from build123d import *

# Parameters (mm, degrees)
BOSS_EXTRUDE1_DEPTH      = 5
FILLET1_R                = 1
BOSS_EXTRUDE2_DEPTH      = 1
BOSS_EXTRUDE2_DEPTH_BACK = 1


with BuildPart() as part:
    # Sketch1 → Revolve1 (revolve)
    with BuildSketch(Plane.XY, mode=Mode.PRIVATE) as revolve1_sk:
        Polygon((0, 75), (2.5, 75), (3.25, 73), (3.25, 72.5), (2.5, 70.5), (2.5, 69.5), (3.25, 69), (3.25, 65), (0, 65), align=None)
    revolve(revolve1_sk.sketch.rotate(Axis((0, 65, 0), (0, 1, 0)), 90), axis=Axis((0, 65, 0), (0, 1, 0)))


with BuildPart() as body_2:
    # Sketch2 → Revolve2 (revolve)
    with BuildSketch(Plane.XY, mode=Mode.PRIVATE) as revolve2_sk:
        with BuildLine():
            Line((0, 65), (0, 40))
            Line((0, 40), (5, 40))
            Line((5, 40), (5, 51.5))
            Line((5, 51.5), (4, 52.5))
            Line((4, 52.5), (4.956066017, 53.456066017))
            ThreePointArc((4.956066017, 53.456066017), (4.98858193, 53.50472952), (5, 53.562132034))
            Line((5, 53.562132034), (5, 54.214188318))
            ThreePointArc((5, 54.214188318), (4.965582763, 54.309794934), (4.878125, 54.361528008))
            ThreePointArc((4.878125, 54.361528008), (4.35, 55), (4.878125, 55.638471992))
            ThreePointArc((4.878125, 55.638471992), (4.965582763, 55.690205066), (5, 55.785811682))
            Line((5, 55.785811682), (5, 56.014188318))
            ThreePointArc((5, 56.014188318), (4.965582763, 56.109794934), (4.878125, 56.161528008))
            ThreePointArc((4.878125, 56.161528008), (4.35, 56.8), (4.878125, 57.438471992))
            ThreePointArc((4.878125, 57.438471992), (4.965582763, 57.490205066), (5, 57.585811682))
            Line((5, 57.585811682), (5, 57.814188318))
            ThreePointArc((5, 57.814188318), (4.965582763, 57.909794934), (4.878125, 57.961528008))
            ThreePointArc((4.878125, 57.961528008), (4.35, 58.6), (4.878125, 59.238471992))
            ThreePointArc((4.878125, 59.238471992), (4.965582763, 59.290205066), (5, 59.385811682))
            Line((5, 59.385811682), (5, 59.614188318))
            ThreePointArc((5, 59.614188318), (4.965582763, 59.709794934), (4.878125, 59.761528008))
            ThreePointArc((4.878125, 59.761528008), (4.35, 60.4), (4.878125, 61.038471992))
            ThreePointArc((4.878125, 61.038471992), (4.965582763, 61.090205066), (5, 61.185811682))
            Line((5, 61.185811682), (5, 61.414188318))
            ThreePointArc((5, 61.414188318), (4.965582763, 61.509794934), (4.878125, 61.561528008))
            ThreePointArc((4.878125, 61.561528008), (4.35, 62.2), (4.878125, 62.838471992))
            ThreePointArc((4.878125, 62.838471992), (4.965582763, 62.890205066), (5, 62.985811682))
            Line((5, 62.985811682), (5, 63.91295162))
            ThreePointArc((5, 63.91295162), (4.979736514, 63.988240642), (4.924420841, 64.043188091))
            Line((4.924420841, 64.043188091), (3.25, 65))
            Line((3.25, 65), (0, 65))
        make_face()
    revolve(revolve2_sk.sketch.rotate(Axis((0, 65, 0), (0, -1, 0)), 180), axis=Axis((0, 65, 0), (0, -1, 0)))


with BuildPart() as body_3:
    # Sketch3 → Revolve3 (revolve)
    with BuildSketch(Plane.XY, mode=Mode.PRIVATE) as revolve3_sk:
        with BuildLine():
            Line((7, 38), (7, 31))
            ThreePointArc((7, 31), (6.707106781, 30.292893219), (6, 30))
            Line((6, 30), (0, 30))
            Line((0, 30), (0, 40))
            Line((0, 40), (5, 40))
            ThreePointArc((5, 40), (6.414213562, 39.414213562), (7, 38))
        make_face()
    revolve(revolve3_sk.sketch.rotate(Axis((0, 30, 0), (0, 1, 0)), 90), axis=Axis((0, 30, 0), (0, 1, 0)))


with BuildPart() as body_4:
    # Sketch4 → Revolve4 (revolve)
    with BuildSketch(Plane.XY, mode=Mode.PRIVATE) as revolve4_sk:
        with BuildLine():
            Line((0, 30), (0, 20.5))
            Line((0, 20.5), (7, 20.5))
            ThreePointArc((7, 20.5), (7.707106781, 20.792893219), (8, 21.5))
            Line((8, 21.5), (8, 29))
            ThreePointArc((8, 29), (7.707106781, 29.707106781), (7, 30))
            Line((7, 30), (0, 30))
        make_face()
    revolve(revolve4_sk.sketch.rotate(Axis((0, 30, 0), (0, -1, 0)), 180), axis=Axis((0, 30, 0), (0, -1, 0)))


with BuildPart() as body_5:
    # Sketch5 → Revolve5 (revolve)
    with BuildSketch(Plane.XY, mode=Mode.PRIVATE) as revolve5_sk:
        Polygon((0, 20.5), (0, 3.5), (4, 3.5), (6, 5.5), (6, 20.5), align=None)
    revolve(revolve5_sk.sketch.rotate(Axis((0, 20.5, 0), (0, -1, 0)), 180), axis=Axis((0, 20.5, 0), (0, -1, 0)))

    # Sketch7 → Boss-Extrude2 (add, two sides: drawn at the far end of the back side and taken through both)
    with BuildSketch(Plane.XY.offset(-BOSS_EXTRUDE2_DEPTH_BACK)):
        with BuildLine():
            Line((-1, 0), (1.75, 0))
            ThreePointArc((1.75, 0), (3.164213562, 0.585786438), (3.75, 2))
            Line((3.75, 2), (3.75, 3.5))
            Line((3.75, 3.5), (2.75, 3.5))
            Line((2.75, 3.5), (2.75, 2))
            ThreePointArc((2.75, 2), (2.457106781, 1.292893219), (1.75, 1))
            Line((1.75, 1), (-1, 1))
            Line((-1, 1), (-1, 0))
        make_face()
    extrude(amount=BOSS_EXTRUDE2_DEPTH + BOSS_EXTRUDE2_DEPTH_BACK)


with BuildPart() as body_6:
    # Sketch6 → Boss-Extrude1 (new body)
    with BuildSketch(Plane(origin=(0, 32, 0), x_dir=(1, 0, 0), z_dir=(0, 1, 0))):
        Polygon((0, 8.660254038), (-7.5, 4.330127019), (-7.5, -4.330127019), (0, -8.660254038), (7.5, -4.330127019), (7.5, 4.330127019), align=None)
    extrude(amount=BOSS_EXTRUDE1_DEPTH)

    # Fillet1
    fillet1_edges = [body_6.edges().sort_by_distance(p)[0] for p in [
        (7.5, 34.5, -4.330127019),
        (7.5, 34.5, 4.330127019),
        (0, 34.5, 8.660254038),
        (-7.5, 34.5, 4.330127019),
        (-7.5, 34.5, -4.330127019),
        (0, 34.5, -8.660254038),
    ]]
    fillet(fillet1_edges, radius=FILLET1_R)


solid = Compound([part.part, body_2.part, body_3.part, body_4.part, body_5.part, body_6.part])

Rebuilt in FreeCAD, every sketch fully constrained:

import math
import FreeCAD as App
import Part
import Sketcher
Q = App.Units.Quantity


def edges_at(feature, points):
    """Names of the edges that pass closest to the given points."""
    edges = feature.Shape.Edges
    near = lambda p: min(range(len(edges)), key=lambda i: edges[i].distToShape(Part.Vertex(*p))[0])
    return sorted({f"Edge{near(p) + 1}" for p in points})

doc = App.newDocument("Part")
body = doc.addObject("PartDesign::Body", "Body")

# Sketch on XY plane
sketch1 = body.newObject("Sketcher::SketchObject", "Sketch")
sketch1.AttachmentSupport = (doc.getObject("XY_Plane"), [""])
sketch1.MapMode = "FlatFace"
sketch1.addGeometry([
    Part.LineSegment(App.Vector(2.5, 75, 0), App.Vector(0, 75, 0)),  # 0
    Part.LineSegment(App.Vector(0, 75, 0), App.Vector(0, 65, 0)),  # 1
    Part.LineSegment(App.Vector(0, 65, 0), App.Vector(3.2, 65, 0)),  # 2
    Part.LineSegment(App.Vector(3.2, 65, 0), App.Vector(3.2, 69, 0)),  # 3
    Part.LineSegment(App.Vector(3.2, 69, 0), App.Vector(2.5, 69.5, 0)),  # 4
    Part.LineSegment(App.Vector(2.5, 69.5, 0), App.Vector(2.5, 70.5, 0)),  # 5
    Part.LineSegment(App.Vector(2.5, 70.5, 0), App.Vector(3.2, 72.5, 0)),  # 6
    Part.LineSegment(App.Vector(3.2, 72.5, 0), App.Vector(3.2, 73, 0)),  # 7
    Part.LineSegment(App.Vector(3.2, 73, 0), App.Vector(2.5, 75, 0)),  # 8
], False)
sketch1.addConstraint([
    Sketcher.Constraint("Coincident", 0, 2, 1, 1),
    Sketcher.Constraint("Coincident", 1, 2, 2, 1),
    Sketcher.Constraint("Coincident", 2, 2, 3, 1),
    Sketcher.Constraint("Coincident", 3, 2, 4, 1),
    Sketcher.Constraint("Coincident", 4, 2, 5, 1),
    Sketcher.Constraint("Coincident", 5, 2, 6, 1),
    Sketcher.Constraint("Coincident", 6, 2, 7, 1),
    Sketcher.Constraint("Coincident", 7, 2, 8, 1),
    Sketcher.Constraint("Coincident", 8, 2, 0, 1),
    Sketcher.Constraint("Horizontal", 0),
    Sketcher.Constraint("Vertical", 1),
    Sketcher.Constraint("Horizontal", 2),
    Sketcher.Constraint("Vertical", 3),
    Sketcher.Constraint("Vertical", 5),
    Sketcher.Constraint("Vertical", 7),
    Sketcher.Constraint("PointOnObject", 0, 2, -2),
    Sketcher.Constraint("Vertical", 3, 2, 6, 2),
    Sketcher.Constraint("Vertical", 5, 2, 8, 2),
    Sketcher.Constraint("Equal", 6, 8),
    Sketcher.Constraint("DistanceY", 1, 2, 1, 1, 10.0),
    Sketcher.Constraint("DistanceY", 3, 1, 3, 2, 4.0),
    Sketcher.Constraint("DistanceY", 5, 1, 5, 2, 1.0),
    Sketcher.Constraint("DistanceX", 0, 2, 0, 1, 2.5),
    Sketcher.Constraint("DistanceY", 7, 1, 7, 2, 0.5),
    Sketcher.Constraint("DistanceY", -1, 1, 0, 2, 75.0),
    Sketcher.Constraint("DistanceY", -1, 1, 7, 2, 73.0),
    Sketcher.Constraint("DistanceX", 2, 1, 2, 2, 3.25),
])
revolution = body.newObject("PartDesign::Revolution", "Revolution")
revolution.Profile = sketch1
revolution.ReferenceAxis = (sketch1, ["V_Axis"])
revolution.Angle = 360
body2 = doc.addObject("PartDesign::Body", "Body001")

# Sketch on XY plane
sketch2 = body2.newObject("Sketcher::SketchObject", "Sketch001")
sketch2.AttachmentSupport = (doc.getObject("XY_Plane001"), [""])
sketch2.MapMode = "FlatFace"
sketch2.addGeometry([
    Part.LineSegment(App.Vector(0, 65, 0), App.Vector(0, 40, 0)),  # 0
    Part.LineSegment(App.Vector(0, 40, 0), App.Vector(5, 40, 0)),  # 1
    Part.LineSegment(App.Vector(5, 40, 0), App.Vector(5, 51.5, 0)),  # 2
    Part.LineSegment(App.Vector(5, 51.5, 0), App.Vector(4, 52.5, 0)),  # 3
    Part.LineSegment(App.Vector(4, 52.5, 0), App.Vector(4.96, 53.46, 0)),  # 4
    Part.ArcOfCircle(Part.Circle(App.Vector(4.85, 53.56, 0), App.Vector(0, 0, 1), 0.15), math.radians(-45), math.radians(0)),  # 5
    Part.LineSegment(App.Vector(5, 53.56, 0), App.Vector(5, 54.21, 0)),  # 6
    Part.ArcOfCircle(Part.Circle(App.Vector(4.85, 54.21, 0), App.Vector(0, 0, 1), 0.15), math.radians(0), math.radians(79)),  # 7
    Part.ArcOfCircle(Part.Circle(App.Vector(5, 55, 0), App.Vector(0, 0, 1), 0.65), math.radians(101), math.radians(259)),  # 8
    Part.ArcOfCircle(Part.Circle(App.Vector(4.85, 55.79, 0), App.Vector(0, 0, 1), 0.15), math.radians(-79), math.radians(0)),  # 9
    Part.LineSegment(App.Vector(5, 55.79, 0), App.Vector(5, 56.01, 0)),  # 10
    Part.ArcOfCircle(Part.Circle(App.Vector(4.85, 56.01, 0), App.Vector(0, 0, 1), 0.15), math.radians(0), math.radians(79)),  # 11
    Part.ArcOfCircle(Part.Circle(App.Vector(5, 56.8, 0), App.Vector(0, 0, 1), 0.65), math.radians(101), math.radians(259)),  # 12
    Part.ArcOfCircle(Part.Circle(App.Vector(4.85, 57.59, 0), App.Vector(0, 0, 1), 0.15), math.radians(-79), math.radians(0)),  # 13
    Part.LineSegment(App.Vector(5, 57.59, 0), App.Vector(5, 57.81, 0)),  # 14
    Part.ArcOfCircle(Part.Circle(App.Vector(4.85, 57.81, 0), App.Vector(0, 0, 1), 0.15), math.radians(0), math.radians(79)),  # 15
    Part.ArcOfCircle(Part.Circle(App.Vector(5, 58.6, 0), App.Vector(0, 0, 1), 0.65), math.radians(101), math.radians(259)),  # 16
    Part.ArcOfCircle(Part.Circle(App.Vector(4.85, 59.39, 0), App.Vector(0, 0, 1), 0.15), math.radians(-79), math.radians(0)),  # 17
    Part.LineSegment(App.Vector(5, 59.39, 0), App.Vector(5, 59.61, 0)),  # 18
    Part.ArcOfCircle(Part.Circle(App.Vector(4.85, 59.61, 0), App.Vector(0, 0, 1), 0.15), math.radians(0), math.radians(79)),  # 19
    Part.ArcOfCircle(Part.Circle(App.Vector(5, 60.4, 0), App.Vector(0, 0, 1), 0.65), math.radians(101), math.radians(259)),  # 20
    Part.ArcOfCircle(Part.Circle(App.Vector(4.85, 61.19, 0), App.Vector(0, 0, 1), 0.15), math.radians(-79), math.radians(0)),  # 21
    Part.LineSegment(App.Vector(5, 61.19, 0), App.Vector(5, 61.41, 0)),  # 22
    Part.ArcOfCircle(Part.Circle(App.Vector(4.85, 61.41, 0), App.Vector(0, 0, 1), 0.15), math.radians(0), math.radians(79)),  # 23
    Part.ArcOfCircle(Part.Circle(App.Vector(5, 62.2, 0), App.Vector(0, 0, 1), 0.65), math.radians(101), math.radians(259)),  # 24
    Part.ArcOfCircle(Part.Circle(App.Vector(4.85, 62.99, 0), App.Vector(0, 0, 1), 0.15), math.radians(-79), math.radians(0)),  # 25
    Part.LineSegment(App.Vector(5, 62.99, 0), App.Vector(5, 63.91, 0)),  # 26
    Part.ArcOfCircle(Part.Circle(App.Vector(4.85, 63.91, 0), App.Vector(0, 0, 1), 0.15), math.radians(0), math.radians(60)),  # 27
    Part.LineSegment(App.Vector(4.92, 64.04, 0), App.Vector(3.25, 65, 0)),  # 28
    Part.LineSegment(App.Vector(3.25, 65, 0), App.Vector(0, 65, 0)),  # 29
], False)
sketch2.addConstraint([
    Sketcher.Constraint("Coincident", 0, 2, 1, 1),
    Sketcher.Constraint("Coincident", 1, 2, 2, 1),
    Sketcher.Constraint("Coincident", 2, 2, 3, 1),
    Sketcher.Constraint("Coincident", 3, 2, 4, 1),
    Sketcher.Constraint("Tangent", 4, 2, 5, 1),
    Sketcher.Constraint("Tangent", 5, 2, 6, 1),
    Sketcher.Constraint("Tangent", 6, 2, 7, 1),
    Sketcher.Constraint("Tangent", 7, 2, 8, 2),
    Sketcher.Constraint("Tangent", 8, 1, 9, 1),
    Sketcher.Constraint("Tangent", 9, 2, 10, 1),
    Sketcher.Constraint("Tangent", 10, 2, 11, 1),
    Sketcher.Constraint("Tangent", 11, 2, 12, 2),
    Sketcher.Constraint("Tangent", 12, 1, 13, 1),
    Sketcher.Constraint("Tangent", 13, 2, 14, 1),
    Sketcher.Constraint("Tangent", 14, 2, 15, 1),
    Sketcher.Constraint("Tangent", 15, 2, 16, 2),
    Sketcher.Constraint("Tangent", 16, 1, 17, 1),
    Sketcher.Constraint("Tangent", 17, 2, 18, 1),
    Sketcher.Constraint("Tangent", 18, 2, 19, 1),
    Sketcher.Constraint("Tangent", 19, 2, 20, 2),
    Sketcher.Constraint("Tangent", 20, 1, 21, 1),
    Sketcher.Constraint("Tangent", 21, 2, 22, 1),
    Sketcher.Constraint("Tangent", 22, 2, 23, 1),
    Sketcher.Constraint("Tangent", 23, 2, 24, 2),
    Sketcher.Constraint("Tangent", 24, 1, 25, 1),
    Sketcher.Constraint("Tangent", 25, 2, 26, 1),
    Sketcher.Constraint("Tangent", 26, 2, 27, 1),
    Sketcher.Constraint("Tangent", 27, 2, 28, 1),
    Sketcher.Constraint("Coincident", 28, 2, 29, 1),
    Sketcher.Constraint("Coincident", 29, 2, 0, 1),
    Sketcher.Constraint("Vertical", 0),
    Sketcher.Constraint("Horizontal", 1),
    Sketcher.Constraint("Vertical", 2),
    Sketcher.Constraint("Vertical", 6),
    Sketcher.Constraint("Vertical", 10),
    Sketcher.Constraint("Vertical", 14),
    Sketcher.Constraint("Vertical", 18),
    Sketcher.Constraint("Vertical", 22),
    Sketcher.Constraint("Vertical", 26),
    Sketcher.Constraint("Horizontal", 29),
    Sketcher.Constraint("Equal", 5, 7),
    Sketcher.Constraint("Equal", 7, 9),
    Sketcher.Constraint("Equal", 9, 11),
    Sketcher.Constraint("Equal", 8, 12),
    Sketcher.Constraint("Equal", 11, 13),
    Sketcher.Constraint("Equal", 13, 15),
    Sketcher.Constraint("Equal", 12, 16),
    Sketcher.Constraint("Equal", 15, 17),
    Sketcher.Constraint("Equal", 17, 19),
    Sketcher.Constraint("Equal", 16, 20),
    Sketcher.Constraint("Equal", 19, 21),
    Sketcher.Constraint("Equal", 21, 23),
    Sketcher.Constraint("Equal", 20, 24),
    Sketcher.Constraint("Equal", 23, 25),
    Sketcher.Constraint("Equal", 25, 27),
    Sketcher.Constraint("PointOnObject", 0, 2, -2),
    Sketcher.Constraint("Perpendicular", 3, 4),
    Sketcher.Constraint("Vertical", 7, 3, 9, 3),
    Sketcher.Constraint("Vertical", 8, 3, 12, 3),
    Sketcher.Constraint("Vertical", 11, 3, 13, 3),
    Sketcher.Constraint("Vertical", 12, 3, 16, 3),
    Sketcher.Constraint("Vertical", 15, 3, 17, 3),
    Sketcher.Constraint("Vertical", 16, 3, 20, 3),
    Sketcher.Constraint("Vertical", 19, 3, 21, 3),
    Sketcher.Constraint("Vertical", 20, 3, 24, 3),
    Sketcher.Constraint("Vertical", 23, 3, 25, 3),
    Sketcher.Constraint("Vertical", 24, 3, 1, 2),
    Sketcher.Constraint("Vertical", 2, 2, 5, 2),
    Sketcher.Constraint("Equal", 10, 14),
    Sketcher.Constraint("Equal", 14, 18),
    Sketcher.Constraint("Equal", 18, 22),
    Sketcher.Constraint("DistanceX", 1, 1, 1, 2, 5.0),
    Sketcher.Constraint("DistanceY", 0, 2, 0, 1, 25.0),
    Sketcher.Constraint("Angle", 3, Q("135 deg")),
    Sketcher.Constraint("Radius", 5, 0.15),
    Sketcher.Constraint("Radius", 8, 0.65),
    Sketcher.Constraint("DistanceY", 2, 1, 2, 2, 11.5),
    Sketcher.Constraint("DistanceY", -1, 1, 8, 3, 55.0),
    Sketcher.Constraint("DistanceY", -1, 1, 0, 2, 40.0),
    Sketcher.Constraint("DistanceX", -1, 1, 3, 2, 4.0),
    Sketcher.Constraint("DistanceX", 29, 2, 29, 1, 3.25),
    Sketcher.Constraint("DistanceY", -1, 1, 12, 3, 56.8),
    Sketcher.Constraint("DistanceY", 26, 1, 26, 2, 0.92714),
])
revolution2 = body2.newObject("PartDesign::Revolution", "Revolution001")
revolution2.Profile = sketch2
revolution2.ReferenceAxis = (sketch2, ["V_Axis"])
revolution2.Angle = 360
body3 = doc.addObject("PartDesign::Body", "Body002")

# Sketch on XY plane
sketch3 = body3.newObject("Sketcher::SketchObject", "Sketch002")
sketch3.AttachmentSupport = (doc.getObject("XY_Plane002"), [""])
sketch3.MapMode = "FlatFace"
sketch3.addGeometry([
    Part.LineSegment(App.Vector(7, 31, 0), App.Vector(7, 38, 0)),  # 0
    Part.ArcOfCircle(Part.Circle(App.Vector(5, 38, 0), App.Vector(0, 0, 1), 2), math.radians(0), math.radians(90)),  # 1
    Part.LineSegment(App.Vector(5, 40, 0), App.Vector(0, 40, 0)),  # 2
    Part.LineSegment(App.Vector(0, 40, 0), App.Vector(0, 30, 0)),  # 3
    Part.LineSegment(App.Vector(0, 30, 0), App.Vector(6, 30, 0)),  # 4
    Part.ArcOfCircle(Part.Circle(App.Vector(6, 31, 0), App.Vector(0, 0, 1), 1), math.radians(-90), math.radians(0)),  # 5
], False)
sketch3.addConstraint([
    Sketcher.Constraint("Tangent", 0, 2, 1, 1),
    Sketcher.Constraint("Tangent", 1, 2, 2, 1),
    Sketcher.Constraint("Coincident", 2, 2, 3, 1),
    Sketcher.Constraint("Coincident", 3, 2, 4, 1),
    Sketcher.Constraint("Tangent", 4, 2, 5, 1),
    Sketcher.Constraint("Tangent", 5, 2, 0, 1),
    Sketcher.Constraint("Vertical", 0),
    Sketcher.Constraint("Horizontal", 2),
    Sketcher.Constraint("Vertical", 3),
    Sketcher.Constraint("Horizontal", 4),
    Sketcher.Constraint("PointOnObject", 2, 2, -2),
    Sketcher.Constraint("Radius", 1, 2.0),
    Sketcher.Constraint("Radius", 5, 1.0),
    Sketcher.Constraint("DistanceX", 2, 2, 2, 1, 5.0),
    Sketcher.Constraint("DistanceY", 0, 1, 0, 2, 7.0),
    Sketcher.Constraint("DistanceY", -1, 1, 1, 3, 38.0),
])
revolution3 = body3.newObject("PartDesign::Revolution", "Revolution002")
revolution3.Profile = sketch3
revolution3.ReferenceAxis = (sketch3, ["V_Axis"])
revolution3.Angle = 360
body4 = doc.addObject("PartDesign::Body", "Body003")

# Sketch on XY plane
sketch4 = body4.newObject("Sketcher::SketchObject", "Sketch003")
sketch4.AttachmentSupport = (doc.getObject("XY_Plane003"), [""])
sketch4.MapMode = "FlatFace"
sketch4.addGeometry([
    Part.LineSegment(App.Vector(0, 30, 0), App.Vector(0, 20.5, 0)),  # 0
    Part.LineSegment(App.Vector(0, 20.5, 0), App.Vector(7, 20.5, 0)),  # 1
    Part.ArcOfCircle(Part.Circle(App.Vector(7, 21.5, 0), App.Vector(0, 0, 1), 1), math.radians(-90), math.radians(0)),  # 2
    Part.LineSegment(App.Vector(8, 21.5, 0), App.Vector(8, 29, 0)),  # 3
    Part.ArcOfCircle(Part.Circle(App.Vector(7, 29, 0), App.Vector(0, 0, 1), 1), math.radians(0), math.radians(90)),  # 4
    Part.LineSegment(App.Vector(7, 30, 0), App.Vector(0, 30, 0)),  # 5
], False)
sketch4.addConstraint([
    Sketcher.Constraint("Coincident", 0, 2, 1, 1),
    Sketcher.Constraint("Tangent", 1, 2, 2, 1),
    Sketcher.Constraint("Tangent", 2, 2, 3, 1),
    Sketcher.Constraint("Tangent", 3, 2, 4, 1),
    Sketcher.Constraint("Tangent", 4, 2, 5, 1),
    Sketcher.Constraint("Coincident", 5, 2, 0, 1),
    Sketcher.Constraint("Vertical", 0),
    Sketcher.Constraint("Horizontal", 1),
    Sketcher.Constraint("Vertical", 3),
    Sketcher.Constraint("Horizontal", 5),
    Sketcher.Constraint("Equal", 2, 4),
    Sketcher.Constraint("PointOnObject", 0, 2, -2),
    Sketcher.Constraint("Radius", 2, 1.0),
    Sketcher.Constraint("DistanceX", 1, 1, 1, 2, 7.0),
    Sketcher.Constraint("DistanceY", 0, 2, 0, 1, 9.5),
    Sketcher.Constraint("DistanceY", -1, 1, 4, 3, 29.0),
])
revolution4 = body4.newObject("PartDesign::Revolution", "Revolution003")
revolution4.Profile = sketch4
revolution4.ReferenceAxis = (sketch4, ["V_Axis"])
revolution4.Angle = 360
body5 = doc.addObject("PartDesign::Body", "Body004")

# Sketch on XY plane
sketch5 = body5.newObject("Sketcher::SketchObject", "Sketch004")
sketch5.AttachmentSupport = (doc.getObject("XY_Plane004"), [""])
sketch5.MapMode = "FlatFace"
sketch5.addGeometry([
    Part.LineSegment(App.Vector(0, 20.5, 0), App.Vector(0, 3.5, 0)),  # 0
    Part.LineSegment(App.Vector(0, 3.5, 0), App.Vector(4, 3.5, 0)),  # 1
    Part.LineSegment(App.Vector(4, 3.5, 0), App.Vector(6, 5.5, 0)),  # 2
    Part.LineSegment(App.Vector(6, 5.5, 0), App.Vector(6, 20.5, 0)),  # 3
    Part.LineSegment(App.Vector(6, 20.5, 0), App.Vector(0, 20.5, 0)),  # 4
], False)
sketch5.addConstraint([
    Sketcher.Constraint("Coincident", 0, 2, 1, 1),
    Sketcher.Constraint("Coincident", 1, 2, 2, 1),
    Sketcher.Constraint("Coincident", 2, 2, 3, 1),
    Sketcher.Constraint("Coincident", 3, 2, 4, 1),
    Sketcher.Constraint("Coincident", 4, 2, 0, 1),
    Sketcher.Constraint("Vertical", 0),
    Sketcher.Constraint("Horizontal", 1),
    Sketcher.Constraint("Vertical", 3),
    Sketcher.Constraint("Horizontal", 4),
    Sketcher.Constraint("PointOnObject", 0, 2, -2),
    Sketcher.Constraint("DistanceX", 1, 1, 1, 2, 4.0),
    Sketcher.Constraint("DistanceX", 4, 2, 4, 1, 6.0),
    Sketcher.Constraint("DistanceY", 0, 2, 0, 1, 17.0),
    Sketcher.Constraint("DistanceY", 3, 1, 3, 2, 15.0),
    Sketcher.Constraint("DistanceY", -1, 1, 0, 2, 3.5),
])
revolution5 = body5.newObject("PartDesign::Revolution", "Revolution004")
revolution5.Profile = sketch5
revolution5.ReferenceAxis = (sketch5, ["V_Axis"])
revolution5.Angle = 360

# Sketch on XY plane
sketch6 = body5.newObject("Sketcher::SketchObject", "Sketch005")
sketch6.AttachmentSupport = (doc.getObject("XY_Plane004"), [""])
sketch6.MapMode = "FlatFace"
sketch6.addGeometry([
    Part.LineSegment(App.Vector(-1, 0, 0), App.Vector(1.8, 0, 0)),  # 0
    Part.ArcOfCircle(Part.Circle(App.Vector(1.7, 2, 0), App.Vector(0, 0, 1), 2), math.radians(-90), math.radians(0)),  # 1
    Part.LineSegment(App.Vector(3.8, 2, 0), App.Vector(3.8, 3.5, 0)),  # 2
    Part.LineSegment(App.Vector(3.8, 3.5, 0), App.Vector(2.8, 3.5, 0)),  # 3
    Part.LineSegment(App.Vector(2.8, 3.5, 0), App.Vector(2.8, 2, 0)),  # 4
    Part.ArcOfCircle(Part.Circle(App.Vector(1.7, 2, 0), App.Vector(0, 0, 1), 1), math.radians(-90), math.radians(0)),  # 5
    Part.LineSegment(App.Vector(1.8, 1, 0), App.Vector(-1, 1, 0)),  # 6
    Part.LineSegment(App.Vector(-1, 1, 0), App.Vector(-1, 0, 0)),  # 7
], False)
sketch6.addConstraint([
    Sketcher.Constraint("Tangent", 0, 2, 1, 1),
    Sketcher.Constraint("Tangent", 1, 2, 2, 1),
    Sketcher.Constraint("Coincident", 2, 2, 3, 1),
    Sketcher.Constraint("Coincident", 3, 2, 4, 1),
    Sketcher.Constraint("Tangent", 4, 2, 5, 2),
    Sketcher.Constraint("Tangent", 5, 1, 6, 1),
    Sketcher.Constraint("Coincident", 6, 2, 7, 1),
    Sketcher.Constraint("Coincident", 7, 2, 0, 1),
    Sketcher.Constraint("Horizontal", 0),
    Sketcher.Constraint("Vertical", 2),
    Sketcher.Constraint("Horizontal", 3),
    Sketcher.Constraint("Vertical", 4),
    Sketcher.Constraint("Horizontal", 6),
    Sketcher.Constraint("Vertical", 7),
    Sketcher.Constraint("Coincident", 5, 3, 1, 3),
    Sketcher.Constraint("PointOnObject", 0, 2, -1),
    Sketcher.Constraint("Radius", 1, 2.0),
    Sketcher.Constraint("Radius", 5, 1.0),
    Sketcher.Constraint("DistanceY", 2, 1, 2, 2, 1.5),
    Sketcher.Constraint("DistanceX", 6, 2, -1, 1, 1.0),
    Sketcher.Constraint("DistanceX", 0, 1, 0, 2, 2.75),
])
pad1 = body5.newObject("PartDesign::Pad", "Pad")
pad1.Profile = sketch6
pad1.Type = "TwoLengths"
pad1.Length = 1
pad1.Length2 = 1
body6 = doc.addObject("PartDesign::Body", "Body005")

# Sketch on XZ plane
sketch7 = body6.newObject("Sketcher::SketchObject", "Sketch006")
sketch7.AttachmentSupport = (doc.getObject("XZ_Plane005"), [""])
sketch7.MapMode = "FlatFace"
sketch7.AttachmentOffset = App.Placement(App.Vector(0, 0, -32), App.Rotation())
sketch7.addGeometry([
    Part.LineSegment(App.Vector(0, -9, 0), App.Vector(-8, -4, 0)),  # 0
    Part.LineSegment(App.Vector(-8, -4, 0), App.Vector(-8, 4, 0)),  # 1
    Part.LineSegment(App.Vector(-8, 4, 0), App.Vector(0, 9, 0)),  # 2
    Part.LineSegment(App.Vector(0, 9, 0), App.Vector(8, 4, 0)),  # 3
    Part.LineSegment(App.Vector(8, 4, 0), App.Vector(8, -4, 0)),  # 4
    Part.LineSegment(App.Vector(8, -4, 0), App.Vector(0, -9, 0)),  # 5
], False)
sketch7.addConstraint([
    Sketcher.Constraint("Coincident", 0, 2, 1, 1),
    Sketcher.Constraint("Coincident", 1, 2, 2, 1),
    Sketcher.Constraint("Coincident", 2, 2, 3, 1),
    Sketcher.Constraint("Coincident", 3, 2, 4, 1),
    Sketcher.Constraint("Coincident", 4, 2, 5, 1),
    Sketcher.Constraint("Coincident", 5, 2, 0, 1),
    Sketcher.Constraint("Vertical", 1),
    Sketcher.Constraint("Vertical", 4),
    Sketcher.Constraint("Symmetric", 0, 2, 3, 2, -1, 1),
    Sketcher.Constraint("Symmetric", 2, 2, 5, 2, -1, 1),
    Sketcher.Constraint("PointOnObject", 2, 2, -2),
    Sketcher.Constraint("Parallel", 2, 5),
    Sketcher.Constraint("Horizontal", 1, 2, 3, 2),
    Sketcher.Constraint("Angle", 0, Q("150 deg")),
    Sketcher.Constraint("DistanceX", 1, 2, 3, 2, 15.0),
    Sketcher.Constraint("DistanceY", 1, 1, 1, 2, 8.660254),
])
pad2 = body6.newObject("PartDesign::Pad", "Pad001")
pad2.Profile = sketch7
pad2.Length = 5
pad2.Reversed = True
doc.recompute()

fillet = body6.newObject("PartDesign::Fillet", "Fillet")
fillet.Base = (pad2, edges_at(pad2, [
    (7.5, 34.5, -4.33),
    (7.5, 34.5, 4.33),
    (0, 34.5, 8.66),
    (-7.5, 34.5, 4.33),
    (-7.5, 34.5, -4.33),
    (0, 34.5, -8.66),
]))
fillet.Radius = 1

doc.recompute()
